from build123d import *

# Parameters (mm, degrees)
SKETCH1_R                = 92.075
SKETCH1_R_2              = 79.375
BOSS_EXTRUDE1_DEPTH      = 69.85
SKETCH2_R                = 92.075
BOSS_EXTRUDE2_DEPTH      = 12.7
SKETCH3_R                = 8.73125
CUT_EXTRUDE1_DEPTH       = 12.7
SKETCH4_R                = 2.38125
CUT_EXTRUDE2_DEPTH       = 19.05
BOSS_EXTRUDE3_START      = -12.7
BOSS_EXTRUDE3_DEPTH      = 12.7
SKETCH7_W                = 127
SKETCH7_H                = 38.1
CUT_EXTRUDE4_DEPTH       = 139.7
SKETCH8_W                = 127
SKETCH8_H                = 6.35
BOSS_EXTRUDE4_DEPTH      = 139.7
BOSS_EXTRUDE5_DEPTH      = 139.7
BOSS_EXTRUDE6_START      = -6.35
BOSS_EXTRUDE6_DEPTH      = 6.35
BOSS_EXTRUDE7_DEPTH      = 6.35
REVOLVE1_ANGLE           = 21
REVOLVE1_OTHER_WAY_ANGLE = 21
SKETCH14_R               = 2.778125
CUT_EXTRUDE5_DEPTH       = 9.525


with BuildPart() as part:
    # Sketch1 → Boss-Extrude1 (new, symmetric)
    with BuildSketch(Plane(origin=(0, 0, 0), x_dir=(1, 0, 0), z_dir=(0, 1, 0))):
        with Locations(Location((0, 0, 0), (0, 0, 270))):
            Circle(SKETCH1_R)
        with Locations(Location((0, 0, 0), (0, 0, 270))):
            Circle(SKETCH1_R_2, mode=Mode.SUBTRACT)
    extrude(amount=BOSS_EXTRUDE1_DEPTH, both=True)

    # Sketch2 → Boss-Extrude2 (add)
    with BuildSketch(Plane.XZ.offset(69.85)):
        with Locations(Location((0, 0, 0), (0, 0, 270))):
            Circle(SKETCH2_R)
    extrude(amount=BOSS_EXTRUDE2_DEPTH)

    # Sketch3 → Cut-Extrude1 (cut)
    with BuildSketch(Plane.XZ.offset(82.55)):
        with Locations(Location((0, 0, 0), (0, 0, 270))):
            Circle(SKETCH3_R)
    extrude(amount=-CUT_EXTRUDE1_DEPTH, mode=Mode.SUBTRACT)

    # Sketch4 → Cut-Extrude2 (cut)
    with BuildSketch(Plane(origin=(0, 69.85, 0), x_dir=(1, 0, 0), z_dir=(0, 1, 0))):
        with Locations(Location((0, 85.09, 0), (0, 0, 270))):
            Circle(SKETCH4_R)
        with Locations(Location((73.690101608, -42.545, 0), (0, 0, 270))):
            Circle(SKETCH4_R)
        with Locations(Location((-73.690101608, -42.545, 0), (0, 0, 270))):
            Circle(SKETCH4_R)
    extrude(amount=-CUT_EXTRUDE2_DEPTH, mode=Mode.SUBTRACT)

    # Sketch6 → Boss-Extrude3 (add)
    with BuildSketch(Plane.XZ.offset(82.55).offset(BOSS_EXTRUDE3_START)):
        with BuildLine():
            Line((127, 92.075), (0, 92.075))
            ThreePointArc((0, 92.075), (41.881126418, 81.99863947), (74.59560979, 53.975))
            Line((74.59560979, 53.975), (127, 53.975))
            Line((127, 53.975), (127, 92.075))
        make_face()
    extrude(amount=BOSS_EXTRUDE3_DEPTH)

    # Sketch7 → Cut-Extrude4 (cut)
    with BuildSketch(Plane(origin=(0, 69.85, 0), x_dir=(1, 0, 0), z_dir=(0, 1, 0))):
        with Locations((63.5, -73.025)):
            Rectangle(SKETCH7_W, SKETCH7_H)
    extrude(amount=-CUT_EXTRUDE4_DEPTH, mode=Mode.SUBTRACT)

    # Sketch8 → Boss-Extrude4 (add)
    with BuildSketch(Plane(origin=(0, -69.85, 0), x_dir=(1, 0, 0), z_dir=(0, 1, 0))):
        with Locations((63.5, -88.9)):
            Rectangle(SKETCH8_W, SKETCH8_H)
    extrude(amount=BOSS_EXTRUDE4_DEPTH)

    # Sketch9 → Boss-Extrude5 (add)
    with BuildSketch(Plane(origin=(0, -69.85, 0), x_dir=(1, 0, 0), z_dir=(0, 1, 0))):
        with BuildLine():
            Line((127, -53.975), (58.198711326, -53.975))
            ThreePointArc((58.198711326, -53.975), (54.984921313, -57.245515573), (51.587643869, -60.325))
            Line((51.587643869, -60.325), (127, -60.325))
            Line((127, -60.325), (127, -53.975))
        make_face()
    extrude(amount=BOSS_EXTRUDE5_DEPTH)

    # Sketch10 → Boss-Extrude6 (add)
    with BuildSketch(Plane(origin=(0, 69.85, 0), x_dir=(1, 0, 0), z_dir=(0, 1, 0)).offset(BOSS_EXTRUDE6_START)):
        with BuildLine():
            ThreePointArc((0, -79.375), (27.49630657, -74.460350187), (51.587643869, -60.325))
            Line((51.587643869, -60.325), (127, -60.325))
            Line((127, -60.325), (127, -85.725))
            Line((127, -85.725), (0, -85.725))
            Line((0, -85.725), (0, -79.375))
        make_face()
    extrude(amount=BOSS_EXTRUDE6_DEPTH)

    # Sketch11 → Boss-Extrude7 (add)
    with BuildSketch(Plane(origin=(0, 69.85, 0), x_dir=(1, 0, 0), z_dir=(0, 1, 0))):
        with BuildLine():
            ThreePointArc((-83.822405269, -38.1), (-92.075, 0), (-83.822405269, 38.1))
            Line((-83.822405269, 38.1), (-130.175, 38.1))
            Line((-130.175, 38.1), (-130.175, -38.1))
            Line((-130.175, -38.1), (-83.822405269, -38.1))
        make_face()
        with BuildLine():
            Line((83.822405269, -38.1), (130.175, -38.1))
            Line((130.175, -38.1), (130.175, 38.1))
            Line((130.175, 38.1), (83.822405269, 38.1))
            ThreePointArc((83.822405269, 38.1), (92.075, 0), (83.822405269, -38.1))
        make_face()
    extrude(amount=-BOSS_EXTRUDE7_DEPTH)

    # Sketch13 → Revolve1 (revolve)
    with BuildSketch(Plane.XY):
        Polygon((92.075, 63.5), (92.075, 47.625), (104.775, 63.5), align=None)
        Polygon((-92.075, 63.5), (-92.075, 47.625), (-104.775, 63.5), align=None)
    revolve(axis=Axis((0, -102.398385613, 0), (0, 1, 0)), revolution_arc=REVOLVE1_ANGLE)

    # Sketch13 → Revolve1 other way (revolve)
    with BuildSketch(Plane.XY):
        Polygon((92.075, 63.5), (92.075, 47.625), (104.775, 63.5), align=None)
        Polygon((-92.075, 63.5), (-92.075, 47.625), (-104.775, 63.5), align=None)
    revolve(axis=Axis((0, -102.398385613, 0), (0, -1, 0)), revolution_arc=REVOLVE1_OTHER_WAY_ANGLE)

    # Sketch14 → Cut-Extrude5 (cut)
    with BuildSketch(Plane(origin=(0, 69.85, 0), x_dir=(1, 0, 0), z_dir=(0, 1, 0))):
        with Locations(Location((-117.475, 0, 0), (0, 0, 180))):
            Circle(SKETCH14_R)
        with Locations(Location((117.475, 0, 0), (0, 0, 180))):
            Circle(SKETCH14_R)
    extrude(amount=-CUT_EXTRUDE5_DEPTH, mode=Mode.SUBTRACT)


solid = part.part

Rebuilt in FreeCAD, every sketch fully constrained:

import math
import FreeCAD as App
import Part
import Sketcher
Q = App.Units.Quantity

doc = App.newDocument("Part")
body = doc.addObject("PartDesign::Body", "Body")

sketch1 = doc.addObject("Sketcher::SketchObject", "Sketch")
body.addObject(sketch1)
sketch1.AttachmentSupport = (doc.XZ_Plane, [""])
sketch1.MapMode = "FlatFace"
sketch1.addGeometry([
    Part.Circle(App.Vector(0, 0, 0), App.Vector(0, 0, 1), 92),
    Part.Circle(App.Vector(0, 0, 0), App.Vector(0, 0, 1), 79),
], False)
sketch1.addConstraint([
    Sketcher.Constraint("Coincident", 0, 3, -1, 1),
    Sketcher.Constraint("Coincident", 1, 3, -1, 1),
    Sketcher.Constraint("Diameter", 0, Q("7.25 in")),
    Sketcher.Constraint("Diameter", 1, Q("6.25 in")),
])
pad1 = doc.addObject("PartDesign::Pad", "Pad")
body.addObject(pad1)
pad1.Profile = sketch1
pad1.Length = Q("5.5 in")
pad1.Midplane = True

sketch2 = doc.addObject("Sketcher::SketchObject", "Sketch001")
body.addObject(sketch2)
sketch2.AttachmentSupport = (doc.XZ_Plane, [""])
sketch2.MapMode = "FlatFace"
sketch2.AttachmentOffset = App.Placement(App.Vector(0, 0, 2.75 * 25.4), App.Rotation())
sketch2.addGeometry(Part.Circle(App.Vector(0, 0, 0), App.Vector(0, 0, 1), 92), False)
sketch2.addConstraint([
    Sketcher.Constraint("Coincident", 0, 3, -1, 1),
    Sketcher.Constraint("Diameter", 0, Q("7.25 in")),
])
pad2 = doc.addObject("PartDesign::Pad", "Pad001")
body.addObject(pad2)
pad2.Profile = sketch2
pad2.Length = Q("0.5 in")

sketch3 = doc.addObject("Sketcher::SketchObject", "Sketch002")
body.addObject(sketch3)
sketch3.AttachmentSupport = (doc.XZ_Plane, [""])
sketch3.MapMode = "FlatFace"
sketch3.AttachmentOffset = App.Placement(App.Vector(0, 0, 3.25 * 25.4), App.Rotation())
sketch3.addGeometry(Part.Circle(App.Vector(0, 0, 0), App.Vector(0, 0, 1), 9), False)
sketch3.addConstraint([
    Sketcher.Constraint("Coincident", 0, 3, -1, 1),
    Sketcher.Constraint("Diameter", 0, Q("0.6875 in")),
])
pocket1 = doc.addObject("PartDesign::Pocket", "Pocket")
body.addObject(pocket1)
pocket1.Profile = sketch3
pocket1.Length = Q("0.5 in")

sketch4 = doc.addObject("Sketcher::SketchObject", "Sketch003")
body.addObject(sketch4)
sketch4.AttachmentSupport = (doc.XZ_Plane, [""])
sketch4.MapMode = "FlatFace"
sketch4.AttachmentOffset = App.Placement(App.Vector(0, 0, -2.75 * 25.4), App.Rotation())
sketch4.addGeometry([
    Part.Circle(App.Vector(0, -85.1, 0), App.Vector(0, 0, 1), 2.4),
    Part.Circle(App.Vector(73.7, 42.5, 0), App.Vector(0, 0, 1), 2.4),
    Part.Circle(App.Vector(-73.7, 42.5, 0), App.Vector(0, 0, 1), 2.4),
], False)
sketch4.addConstraint([
    Sketcher.Constraint("Equal", 0, 1),
    Sketcher.Constraint("Equal", 1, 2),
    Sketcher.Constraint("Symmetric", 1, 3, 2, 3, -2),
    Sketcher.Constraint("PointOnObject", 0, 3, -2),
    Sketcher.Constraint("Diameter", 0, Q("0.1875 in")),
    Sketcher.Constraint("DistanceY", 0, 3, -1, 1, Q("3.35 in")),
    Sketcher.Constraint("DistanceY", -1, 1, 1, 3, Q("1.675 in")),
    Sketcher.Constraint("DistanceX", -1, 1, 1, 3, Q("73.690102 mm")),
])
pocket2 = doc.addObject("PartDesign::Pocket", "Pocket001")
body.addObject(pocket2)
pocket2.Profile = sketch4
pocket2.Length = Q("0.75 in")
pocket2.Reversed = True

sketch5 = doc.addObject("Sketcher::SketchObject", "Sketch004")
body.addObject(sketch5)
sketch5.AttachmentSupport = (doc.XZ_Plane, [""])
sketch5.MapMode = "FlatFace"
sketch5.AttachmentOffset = App.Placement(App.Vector(0, 0, 2.75 * 25.4), App.Rotation())
sketch5.addGeometry([
    Part.LineSegment(App.Vector(127, 92, 0), App.Vector(0, 92, 0)),
    Part.ArcOfCircle(Part.Circle(App.Vector(0, 0, 0), App.Vector(0, 0, 1), 92), math.radians(36), math.radians(90)),
    Part.LineSegment(App.Vector(75, 54, 0), App.Vector(127, 54, 0)),
    Part.LineSegment(App.Vector(127, 54, 0), App.Vector(127, 92, 0)),
], False)
sketch5.addConstraint([
    Sketcher.Constraint("Tangent", 0, 2, 1, 2),
    Sketcher.Constraint("Coincident", 1, 1, 2, 1),
    Sketcher.Constraint("Coincident", 2, 2, 3, 1),
    Sketcher.Constraint("Coincident", 3, 2, 0, 1),
    Sketcher.Constraint("Horizontal", 0),
    Sketcher.Constraint("Horizontal", 2),
    Sketcher.Constraint("Vertical", 3),
    Sketcher.Constraint("Coincident", 1, 3, -1, 1),
    Sketcher.Constraint("DistanceX", 0, 2, 0, 1, Q("5 in")),
    Sketcher.Constraint("DistanceY", 3, 1, 3, 2, Q("1.5 in")),
    Sketcher.Constraint("Radius", 1, Q("3.625 in")),
])
pad3 = doc.addObject("PartDesign::Pad", "Pad002")
body.addObject(pad3)
pad3.Profile = sketch5
pad3.Length = Q("0.5 in")

sketch6 = doc.addObject("Sketcher::SketchObject", "Sketch005")
body.addObject(sketch6)
sketch6.AttachmentSupport = (doc.XZ_Plane, [""])
sketch6.MapMode = "FlatFace"
sketch6.AttachmentOffset = App.Placement(App.Vector(0, 0, -2.75 * 25.4), App.Rotation())
sketch6.addGeometry([
    Part.LineSegment(App.Vector(0, 54, 0), App.Vector(0, 92, 0)),
    Part.LineSegment(App.Vector(0, 92, 0), App.Vector(127, 92, 0)),
    Part.LineSegment(App.Vector(127, 92, 0), App.Vector(127, 54, 0)),
    Part.LineSegment(App.Vector(127, 54, 0), App.Vector(0, 54, 0)),
], False)
sketch6.addConstraint([
    Sketcher.Constraint("Coincident", 0, 2, 1, 1),
    Sketcher.Constraint("Coincident", 1, 2, 2, 1),
    Sketcher.Constraint("Coincident", 2, 2, 3, 1),
    Sketcher.Constraint("Coincident", 3, 2, 0, 1),
    Sketcher.Constraint("Vertical", 0),
    Sketcher.Constraint("Horizontal", 1),
    Sketcher.Constraint("Vertical", 2),
    Sketcher.Constraint("Horizontal", 3),
    Sketcher.Constraint("PointOnObject", 0, 2, -2),
    Sketcher.Constraint("DistanceX", 1, 1, 1, 2, Q("5 in")),
    Sketcher.Constraint("DistanceY", 0, 1, 0, 2, Q("1.5 in")),
    Sketcher.Constraint("DistanceY", -1, 1, 0, 2, Q("3.625 in")),
])
pocket3 = doc.addObject("PartDesign::Pocket", "Pocket002")
body.addObject(pocket3)
pocket3.Profile = sketch6
pocket3.Length = Q("5.5 in")
pocket3.Reversed = True

sketch7 = doc.addObject("Sketcher::SketchObject", "Sketch006")
body.addObject(sketch7)
sketch7.AttachmentSupport = (doc.XZ_Plane, [""])
sketch7.MapMode = "FlatFace"
sketch7.AttachmentOffset = App.Placement(App.Vector(0, 0, 2.75 * 25.4), App.Rotation())
sketch7.addGeometry([
    Part.LineSegment(App.Vector(0, 86, 0), App.Vector(0, 92, 0)),
    Part.LineSegment(App.Vector(0, 92, 0), App.Vector(127, 92, 0)),
    Part.LineSegment(App.Vector(127, 92, 0), App.Vector(127, 86, 0)),
    Part.LineSegment(App.Vector(127, 86, 0), App.Vector(0, 86, 0)),
], False)
sketch7.addConstraint([
    Sketcher.Constraint("Coincident", 0, 2, 1, 1),
    Sketcher.Constraint("Coincident", 1, 2, 2, 1),
    Sketcher.Constraint("Coincident", 2, 2, 3, 1),
    Sketcher.Constraint("Coincident", 3, 2, 0, 1),
    Sketcher.Constraint("Vertical", 0),
    Sketcher.Constraint("Horizontal", 1),
    Sketcher.Constraint("Vertical", 2),
    Sketcher.Constraint("Horizontal", 3),
    Sketcher.Constraint("PointOnObject", 0, 2, -2),
    Sketcher.Constraint("DistanceX", 1, 1, 1, 2, Q("5 in")),
    Sketcher.Constraint("DistanceY", 0, 1, 0, 2, Q("0.25 in")),
    Sketcher.Constraint("DistanceY", -1, 1, 0, 2, Q("3.625 in")),
])
pad4 = doc.addObject("PartDesign::Pad", "Pad003")
body.addObject(pad4)
pad4.Profile = sketch7
pad4.Length = Q("5.5 in")
pad4.Reversed = True

sketch8 = doc.addObject("Sketcher::SketchObject", "Sketch007")
body.addObject(sketch8)
sketch8.AttachmentSupport = (doc.XZ_Plane, [""])
sketch8.MapMode = "FlatFace"
sketch8.AttachmentOffset = App.Placement(App.Vector(0, 0, 2.75 * 25.4), App.Rotation())
sketch8.addGeometry([
    Part.LineSegment(App.Vector(127, 54, 0), App.Vector(58, 54, 0)),
    Part.ArcOfCircle(Part.Circle(App.Vector(0, 0, 0), App.Vector(0, 0, 1), 79), math.radians(42.84), math.radians(49.46)),
    Part.LineSegment(App.Vector(52, 60, 0), App.Vector(127, 60, 0)),
    Part.LineSegment(App.Vector(127, 60, 0), App.Vector(127, 54, 0)),
], False)
sketch8.addConstraint([
    Sketcher.Constraint("Coincident", 0, 2, 1, 1),
    Sketcher.Constraint("Coincident", 1, 2, 2, 1),
    Sketcher.Constraint("Coincident", 2, 2, 3, 1),
    Sketcher.Constraint("Coincident", 3, 2, 0, 1),
    Sketcher.Constraint("Horizontal", 0),
    Sketcher.Constraint("Horizontal", 2),
    Sketcher.Constraint("Vertical", 3),
    Sketcher.Constraint("Coincident", 1, 3, -1, 1),
    Sketcher.Constraint("DistanceX", -1, 1, 2, 2, Q("5 in")),
    Sketcher.Constraint("Radius", 1, Q("3.125 in")),
    Sketcher.Constraint("DistanceY", 3, 2, 3, 1, Q("0.25 in")),
    Sketcher.Constraint("DistanceY", -1, 1, 0, 2, Q("2.125 in")),
])
pad5 = doc.addObject("PartDesign::Pad", "Pad004")
body.addObject(pad5)
pad5.Profile = sketch8
pad5.Length = Q("5.5 in")
pad5.Reversed = True

sketch9 = doc.addObject("Sketcher::SketchObject", "Sketch008")
body.addObject(sketch9)
sketch9.AttachmentSupport = (doc.XZ_Plane, [""])
sketch9.MapMode = "FlatFace"
sketch9.AttachmentOffset = App.Placement(App.Vector(0, 0, -2.5 * 25.4), App.Rotation())
sketch9.addGeometry([
    Part.ArcOfCircle(Part.Circle(App.Vector(0, 0, 0), App.Vector(0, 0, 1), 79), math.radians(49), math.radians(90)),
    Part.LineSegment(App.Vector(0, 79, 0), App.Vector(0, 86, 0)),
    Part.LineSegment(App.Vector(0, 86, 0), App.Vector(127, 86, 0)),
    Part.LineSegment(App.Vector(127, 86, 0), App.Vector(127, 60, 0)),
    Part.LineSegment(App.Vector(127, 60, 0), App.Vector(52, 60, 0)),
], False)
sketch9.addConstraint([
    Sketcher.Constraint("Coincident", 0, 2, 1, 1),
    Sketcher.Constraint("Coincident", 1, 2, 2, 1),
    Sketcher.Constraint("Coincident", 2, 2, 3, 1),
    Sketcher.Constraint("Coincident", 3, 2, 4, 1),
    Sketcher.Constraint("Coincident", 4, 2, 0, 1),
    Sketcher.Constraint("Vertical", 1),
    Sketcher.Constraint("Horizontal", 2),
    Sketcher.Constraint("Vertical", 3),
    Sketcher.Constraint("Horizontal", 4),
    Sketcher.Constraint("Coincident", 0, 3, -1, 1),
    Sketcher.Constraint("PointOnObject", 0, 2, -2),
    Sketcher.Constraint("DistanceX", 2, 1, 2, 2, Q("5 in")),
    Sketcher.Constraint("DistanceY", 3, 2, 3, 1, Q("1 in")),
    Sketcher.Constraint("Radius", 0, Q("3.125 in")),
    Sketcher.Constraint("DistanceY", 1, 1, 1, 2, Q("0.25 in")),
])
pad6 = doc.addObject("PartDesign::Pad", "Pad005")
body.addObject(pad6)
pad6.Profile = sketch9
pad6.Length = Q("0.25 in")
pad6.Reversed = True

sketch10 = doc.addObject("Sketcher::SketchObject", "Sketch009")
body.addObject(sketch10)
sketch10.AttachmentSupport = (doc.XZ_Plane, [""])
sketch10.MapMode = "FlatFace"
sketch10.AttachmentOffset = App.Placement(App.Vector(0, 0, -2.75 * 25.4), App.Rotation())
sketch10.addGeometry([
    Part.ArcOfCircle(Part.Circle(App.Vector(0, 0, 0), App.Vector(0, 0, 1), 92), math.radians(156), math.radians(204)),
    Part.LineSegment(App.Vector(-84, -38, 0), App.Vector(-130, -38, 0)),
    Part.LineSegment(App.Vector(-130, -38, 0), App.Vector(-130, 38, 0)),
    Part.LineSegment(App.Vector(-130, 38, 0), App.Vector(-84, 38, 0)),
    Part.LineSegment(App.Vector(84, 38, 0), App.Vector(130, 38, 0)),
    Part.LineSegment(App.Vector(130, 38, 0), App.Vector(130, -38, 0)),
    Part.LineSegment(App.Vector(130, -38, 0), App.Vector(84, -38, 0)),
    Part.ArcOfCircle(Part.Circle(App.Vector(0, 0, 0), App.Vector(0, 0, 1), 92), math.radians(-24), math.radians(24)),
], False)
sketch10.addConstraint([
    Sketcher.Constraint("Coincident", 0, 2, 1, 1),
    Sketcher.Constraint("Coincident", 1, 2, 2, 1),
    Sketcher.Constraint("Coincident", 2, 2, 3, 1),
    Sketcher.Constraint("Coincident", 3, 2, 0, 1),
    Sketcher.Constraint("Coincident", 4, 2, 5, 1),
    Sketcher.Constraint("Coincident", 5, 2, 6, 1),
    Sketcher.Constraint("Coincident", 6, 2, 7, 1),
    Sketcher.Constraint("Coincident", 7, 2, 4, 1),
    Sketcher.Constraint("Horizontal", 1),
    Sketcher.Constraint("Vertical", 2),
    Sketcher.Constraint("Horizontal", 3),
    Sketcher.Constraint("Horizontal", 4),
    Sketcher.Constraint("Vertical", 5),
    Sketcher.Constraint("Horizontal", 6),
    Sketcher.Constraint("Coincident", 0, 3, -1, 1),
    Sketcher.Constraint("Coincident", 7, 3, -1, 1),
    Sketcher.Constraint("Equal", 0, 7),
    Sketcher.Constraint("Symmetric", 1, 2, 4, 2, -1, 1),
    Sketcher.Constraint("Horizontal", 3, 2, 4, 2),
    Sketcher.Constraint("Horizontal", 1, 2, 5, 2),
    Sketcher.Constraint("DistanceY", 2, 1, 2, 2, Q("3 in")),
    Sketcher.Constraint("Radius", 0, Q("3.625 in")),
    Sketcher.Constraint("DistanceX", 2, 2, 4, 2, Q("10.25 in")),
])
pad7 = doc.addObject("PartDesign::Pad", "Pad006")
body.addObject(pad7)
pad7.Profile = sketch10
pad7.Length = Q("0.25 in")

sketch11 = doc.addObject("Sketcher::SketchObject", "Sketch010")
body.addObject(sketch11)
sketch11.AttachmentSupport = (doc.XY_Plane, [""])
sketch11.MapMode = "FlatFace"
sketch11.addGeometry([
    Part.LineSegment(App.Vector(92, 64, 0), App.Vector(92, 48, 0)),
    Part.LineSegment(App.Vector(92, 48, 0), App.Vector(105, 64, 0)),
    Part.LineSegment(App.Vector(105, 64, 0), App.Vector(92, 64, 0)),
    Part.LineSegment(App.Vector(-92, 48, 0), App.Vector(-92, 64, 0)),
    Part.LineSegment(App.Vector(-92, 64, 0), App.Vector(-105, 64, 0)),
    Part.LineSegment(App.Vector(-105, 64, 0), App.Vector(-92, 48, 0)),
], False)
sketch11.addConstraint([
    Sketcher.Constraint("Coincident", 0, 2, 1, 1),
    Sketcher.Constraint("Coincident", 1, 2, 2, 1),
    Sketcher.Constraint("Coincident", 2, 2, 0, 1),
    Sketcher.Constraint("Coincident", 3, 2, 4, 1),
    Sketcher.Constraint("Coincident", 4, 2, 5, 1),
    Sketcher.Constraint("Coincident", 5, 2, 3, 1),
    Sketcher.Constraint("Vertical", 0),
    Sketcher.Constraint("Horizontal", 2),
    Sketcher.Constraint("Vertical", 3),
    Sketcher.Constraint("Horizontal", 4),
    Sketcher.Constraint("Symmetric", 2, 2, 3, 2, -2),
    Sketcher.Constraint("Horizontal", 0, 2, 5, 2),
    Sketcher.Constraint("Equal", 2, 4),
    Sketcher.Constraint("DistanceX", 2, 2, 2, 1, Q("0.5 in")),
    Sketcher.Constraint("DistanceY", -1, 1, 1, 2, Q("2.5 in")),
    Sketcher.Constraint("DistanceY", 0, 2, 0, 1, Q("0.625 in")),
    Sketcher.Constraint("DistanceX", 3, 2, 2, 2, Q("7.25 in")),
])
revolution = doc.addObject("PartDesign::Revolution", "Revolution")
body.addObject(revolution)
revolution.Profile = sketch11
revolution.ReferenceAxis = (sketch11, ["V_Axis"])
revolution.Angle = 21

sketch12 = doc.addObject("Sketcher::SketchObject", "Sketch011")
body.addObject(sketch12)
sketch12.AttachmentSupport = (doc.XY_Plane, [""])
sketch12.MapMode = "FlatFace"
sketch12.addGeometry([
    Part.LineSegment(App.Vector(92, 64, 0), App.Vector(92, 48, 0)),
    Part.LineSegment(App.Vector(92, 48, 0), App.Vector(105, 64, 0)),
    Part.LineSegment(App.Vector(105, 64, 0), App.Vector(92, 64, 0)),
    Part.LineSegment(App.Vector(-92, 48, 0), App.Vector(-92, 64, 0)),
    Part.LineSegment(App.Vector(-92, 64, 0), App.Vector(-105, 64, 0)),
    Part.LineSegment(App.Vector(-105, 64, 0), App.Vector(-92, 48, 0)),
], False)
sketch12.addConstraint([
    Sketcher.Constraint("Coincident", 0, 2, 1, 1),
    Sketcher.Constraint("Coincident", 1, 2, 2, 1),
    Sketcher.Constraint("Coincident", 2, 2, 0, 1),
    Sketcher.Constraint("Coincident", 3, 2, 4, 1),
    Sketcher.Constraint("Coincident", 4, 2, 5, 1),
    Sketcher.Constraint("Coincident", 5, 2, 3, 1),
    Sketcher.Constraint("Vertical", 0),
    Sketcher.Constraint("Horizontal", 2),
    Sketcher.Constraint("Vertical", 3),
    Sketcher.Constraint("Horizontal", 4),
    Sketcher.Constraint("Symmetric", 2, 2, 3, 2, -2),
    Sketcher.Constraint("Horizontal", 0, 2, 5, 2),
    Sketcher.Constraint("Equal", 2, 4),
    Sketcher.Constraint("DistanceX", 2, 2, 2, 1, Q("0.5 in")),
    Sketcher.Constraint("DistanceY", -1, 1, 1, 2, Q("2.5 in")),
    Sketcher.Constraint("DistanceY", 0, 2, 0, 1, Q("0.625 in")),
    Sketcher.Constraint("DistanceX", 3, 2, 2, 2, Q("7.25 in")),
])
revolution2 = doc.addObject("PartDesign::Revolution", "Revolution001")
body.addObject(revolution2)
revolution2.Profile = sketch12
revolution2.ReferenceAxis = (sketch12, ["V_Axis"])
revolution2.Angle = 21
revolution2.Reversed = True

sketch13 = doc.addObject("Sketcher::SketchObject", "Sketch012")
body.addObject(sketch13)
sketch13.AttachmentSupport = (doc.XZ_Plane, [""])
sketch13.MapMode = "FlatFace"
sketch13.AttachmentOffset = App.Placement(App.Vector(0, 0, -2.75 * 25.4), App.Rotation())
sketch13.addGeometry([
    Part.Circle(App.Vector(-117.5, 0, 0), App.Vector(0, 0, 1), 2.8),
    Part.Circle(App.Vector(117.5, 0, 0), App.Vector(0, 0, 1), 2.8),
], False)
sketch13.addConstraint([
    Sketcher.Constraint("Equal", 0, 1),
    Sketcher.Constraint("Symmetric", 0, 3, 1, 3, -1, 1),
    Sketcher.Constraint("PointOnObject", 0, 3, -1),
    Sketcher.Constraint("Diameter", 0, Q("0.21875 in")),
    Sketcher.Constraint("DistanceX", 0, 3, 1, 3, Q("9.25 in")),
])
pocket4 = doc.addObject("PartDesign::Pocket", "Pocket003")
body.addObject(pocket4)
pocket4.Profile = sketch13
pocket4.Length = Q("0.375 in")
pocket4.Reversed = True

doc.recompute()
